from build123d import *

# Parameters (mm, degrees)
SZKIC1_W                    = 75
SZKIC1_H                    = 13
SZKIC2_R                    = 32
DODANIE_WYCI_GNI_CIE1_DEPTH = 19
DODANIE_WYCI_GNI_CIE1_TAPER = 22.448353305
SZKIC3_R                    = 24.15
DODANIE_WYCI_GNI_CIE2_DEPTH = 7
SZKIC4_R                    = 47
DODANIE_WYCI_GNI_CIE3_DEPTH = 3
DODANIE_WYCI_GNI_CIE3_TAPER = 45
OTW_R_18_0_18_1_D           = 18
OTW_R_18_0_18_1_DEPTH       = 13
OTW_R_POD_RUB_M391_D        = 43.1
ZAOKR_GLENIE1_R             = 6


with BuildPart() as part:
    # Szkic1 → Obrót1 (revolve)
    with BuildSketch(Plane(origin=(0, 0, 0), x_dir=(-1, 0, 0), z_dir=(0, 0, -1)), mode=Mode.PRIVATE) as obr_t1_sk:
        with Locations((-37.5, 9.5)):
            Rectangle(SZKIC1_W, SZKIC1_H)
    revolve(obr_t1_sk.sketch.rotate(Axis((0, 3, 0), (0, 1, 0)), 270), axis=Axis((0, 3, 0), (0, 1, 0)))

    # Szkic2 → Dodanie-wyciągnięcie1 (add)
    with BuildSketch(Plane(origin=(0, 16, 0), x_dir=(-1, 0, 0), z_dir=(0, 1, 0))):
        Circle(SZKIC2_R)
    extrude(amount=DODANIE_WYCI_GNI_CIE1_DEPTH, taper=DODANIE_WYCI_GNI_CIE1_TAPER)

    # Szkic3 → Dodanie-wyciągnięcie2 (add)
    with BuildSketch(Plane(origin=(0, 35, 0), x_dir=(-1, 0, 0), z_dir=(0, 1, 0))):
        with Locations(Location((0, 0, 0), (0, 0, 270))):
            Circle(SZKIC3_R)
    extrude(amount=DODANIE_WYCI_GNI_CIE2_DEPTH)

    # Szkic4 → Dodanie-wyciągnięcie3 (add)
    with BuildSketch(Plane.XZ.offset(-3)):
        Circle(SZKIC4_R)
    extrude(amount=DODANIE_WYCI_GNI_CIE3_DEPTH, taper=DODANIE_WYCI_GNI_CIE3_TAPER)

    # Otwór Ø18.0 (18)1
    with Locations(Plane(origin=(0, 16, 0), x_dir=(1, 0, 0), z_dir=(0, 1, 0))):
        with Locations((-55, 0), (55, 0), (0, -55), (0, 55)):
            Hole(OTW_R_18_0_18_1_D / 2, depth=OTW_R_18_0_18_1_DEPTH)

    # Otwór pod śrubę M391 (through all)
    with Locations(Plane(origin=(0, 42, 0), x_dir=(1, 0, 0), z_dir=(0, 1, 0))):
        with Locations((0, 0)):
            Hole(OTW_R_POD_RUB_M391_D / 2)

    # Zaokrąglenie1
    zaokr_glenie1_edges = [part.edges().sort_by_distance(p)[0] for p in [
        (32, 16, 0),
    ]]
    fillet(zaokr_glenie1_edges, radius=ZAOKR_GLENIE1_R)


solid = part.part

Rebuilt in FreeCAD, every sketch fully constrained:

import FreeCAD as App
import Part
import Sketcher

V = App.Vector


def edges_at(feature, points):
    """Names of the edges that pass closest to the given points."""
    edges = feature.Shape.Edges
    near = lambda p: min(range(len(edges)), key=lambda i: edges[i].distToShape(Part.Vertex(*p))[0])
    return sorted({f"Edge{near(p) + 1}" for p in points})


def add_polygon(sketch, points):
    """Adds a closed chain of lines whose ends are joined by coincident constraints."""
    first, n = sketch.GeometryCount, len(points)
    for a, b in zip(points, points[1:] + points[:1]):
        sketch.addGeometry(Part.LineSegment(App.Vector(*a, 0), App.Vector(*b, 0)), False)
    for i in range(n):
        sketch.addConstraint(Sketcher.Constraint("Coincident", first + i, 2, first + (i + 1) % n, 1))

doc = App.newDocument("Part")
body = doc.addObject("PartDesign::Body", "Body")

# Sketch on XY plane
sketch1 = body.newObject("Sketcher::SketchObject", "Sketch")
sketch1.AttachmentSupport = (doc.getObject("XY_Plane"), [""])
sketch1.MapMode = "FlatFace"
add_polygon(sketch1, [(75, 16), (75, 3), (0, 3), (0, 16)])  # lines 0-3
sketch1.addConstraint(Sketcher.Constraint("Vertical", 0))
sketch1.addConstraint(Sketcher.Constraint("Horizontal", 1))
sketch1.addConstraint(Sketcher.Constraint("Vertical", 2))
sketch1.addConstraint(Sketcher.Constraint("Horizontal", 3))
sketch1.addConstraint(Sketcher.Constraint("PointOnObject", 1, 2, -2))
sketch1.addConstraint(Sketcher.Constraint("DistanceX", 1, 2, 1, 1, 75.0))
sketch1.addConstraint(Sketcher.Constraint("DistanceY", 0, 2, 0, 1, 13.0))
sketch1.addConstraint(Sketcher.Constraint("DistanceY", -1, 1, 0, 2, 3.0))
revolution = body.newObject("PartDesign::Revolution", "Revolution")
revolution.Profile = sketch1
revolution.ReferenceAxis = (sketch1, ["V_Axis"])
revolution.Angle = 360

# Sketch on XZ plane
sketch2 = body.newObject("Sketcher::SketchObject", "Sketch001")
sketch2.AttachmentSupport = (doc.getObject("XZ_Plane"), [""])
sketch2.MapMode = "FlatFace"
sketch2.AttachmentOffset = App.Placement(V(0, 0, -16), App.Rotation())
sketch2.addGeometry(Part.Circle(V(0, 0, 0), V(0, 0, 1), 32), False)
sketch2.addConstraint(Sketcher.Constraint("Coincident", 0, 3, -1, 1))
sketch2.addConstraint(Sketcher.Constraint("Diameter", 0, 64.0))
pad1 = body.newObject("PartDesign::Pad", "Pad")
pad1.Profile = sketch2
pad1.Length = 19
pad1.Reversed = True
pad1.TaperAngle = -22.448353

# Sketch on XZ plane
sketch3 = body.newObject("Sketcher::SketchObject", "Sketch002")
sketch3.AttachmentSupport = (doc.getObject("XZ_Plane"), [""])
sketch3.MapMode = "FlatFace"
sketch3.AttachmentOffset = App.Placement(V(0, 0, -35), App.Rotation())
sketch3.addGeometry(Part.Circle(V(0, 0, 0), V(0, 0, 1), 24.15), False)
sketch3.addConstraint(Sketcher.Constraint("Coincident", 0, 3, -1, 1))
sketch3.addConstraint(Sketcher.Constraint("Diameter", 0, 48.3))
pad2 = body.newObject("PartDesign::Pad", "Pad001")
pad2.Profile = sketch3
pad2.Length = 7
pad2.Reversed = True

# Sketch on XZ plane
sketch4 = body.newObject("Sketcher::SketchObject", "Sketch003")
sketch4.AttachmentSupport = (doc.getObject("XZ_Plane"), [""])
sketch4.MapMode = "FlatFace"
sketch4.AttachmentOffset = App.Placement(V(0, 0, -3), App.Rotation())
sketch4.addGeometry(Part.Circle(V(0, 0, 0), V(0, 0, 1), 47), False)
sketch4.addConstraint(Sketcher.Constraint("Coincident", 0, 3, -1, 1))
sketch4.addConstraint(Sketcher.Constraint("Diameter", 0, 94.0))
pad3 = body.newObject("PartDesign::Pad", "Pad002")
pad3.Profile = sketch4
pad3.Length = 3
pad3.TaperAngle = -45

# Sketch on XZ plane
sketch5 = body.newObject("Sketcher::SketchObject", "Sketch004")
sketch5.AttachmentSupport = (doc.getObject("XZ_Plane"), [""])
sketch5.MapMode = "FlatFace"
sketch5.AttachmentOffset = App.Placement(V(0, 0, -16), App.Rotation())
sketch5.addGeometry(Part.Circle(V(-55, 0, 0), V(0, 0, 1), 9), False)
sketch5.addGeometry(Part.Circle(V(55, 0, 0), V(0, 0, 1), 9), False)
sketch5.addGeometry(Part.Circle(V(0, 55, 0), V(0, 0, 1), 9), False)
sketch5.addGeometry(Part.Circle(V(0, -55, 0), V(0, 0, 1), 9), False)
sketch5.addConstraint(Sketcher.Constraint("Equal", 0, 1))
sketch5.addConstraint(Sketcher.Constraint("Equal", 1, 2))
sketch5.addConstraint(Sketcher.Constraint("Equal", 2, 3))
sketch5.addConstraint(Sketcher.Constraint("Symmetric", 0, 3, 1, 3, -1, 1))
sketch5.addConstraint(Sketcher.Constraint("Symmetric", 2, 3, 3, 3, -1, 1))
sketch5.addConstraint(Sketcher.Constraint("PointOnObject", 0, 3, -1))
sketch5.addConstraint(Sketcher.Constraint("PointOnObject", 2, 3, -2))
sketch5.addConstraint(Sketcher.Constraint("Diameter", 0, 18.0))
sketch5.addConstraint(Sketcher.Constraint("DistanceX", 0, 3, -1, 1, 55.0))
sketch5.addConstraint(Sketcher.Constraint("DistanceY", -1, 1, 2, 3, 55.0))
doc.recompute()
hole = body.newObject("PartDesign::Hole", "Hole")
hole.Profile = sketch5
hole.ThreadType = "None"
hole.Diameter = 18
hole.DepthType = "Dimension"
hole.Depth = 13
hole.DrillPoint = "Flat"
hole.Reversed = True

# Sketch on XZ plane
sketch6 = body.newObject("Sketcher::SketchObject", "Sketch005")
sketch6.AttachmentSupport = (doc.getObject("XZ_Plane"), [""])
sketch6.MapMode = "FlatFace"
sketch6.AttachmentOffset = App.Placement(V(0, 0, -42), App.Rotation())
sketch6.addGeometry(Part.Circle(V(0, 0, 0), V(0, 0, 1), 21.55), False)
sketch6.addConstraint(Sketcher.Constraint("Coincident", 0, 3, -1, 1))
sketch6.addConstraint(Sketcher.Constraint("Diameter", 0, 43.1))
doc.recompute()
hole2 = body.newObject("PartDesign::Hole", "Hole001")
hole2.Profile = sketch6
hole2.ThreadType = "None"
hole2.Diameter = 43.1
hole2.DepthType = "ThroughAll"
hole2.Reversed = True
doc.recompute()

fillet = body.newObject("PartDesign::Fillet", "Fillet")
fillet.Base = (hole2, edges_at(hole2, [(32, 16, 0)]))
fillet.Radius = 6

doc.recompute()
